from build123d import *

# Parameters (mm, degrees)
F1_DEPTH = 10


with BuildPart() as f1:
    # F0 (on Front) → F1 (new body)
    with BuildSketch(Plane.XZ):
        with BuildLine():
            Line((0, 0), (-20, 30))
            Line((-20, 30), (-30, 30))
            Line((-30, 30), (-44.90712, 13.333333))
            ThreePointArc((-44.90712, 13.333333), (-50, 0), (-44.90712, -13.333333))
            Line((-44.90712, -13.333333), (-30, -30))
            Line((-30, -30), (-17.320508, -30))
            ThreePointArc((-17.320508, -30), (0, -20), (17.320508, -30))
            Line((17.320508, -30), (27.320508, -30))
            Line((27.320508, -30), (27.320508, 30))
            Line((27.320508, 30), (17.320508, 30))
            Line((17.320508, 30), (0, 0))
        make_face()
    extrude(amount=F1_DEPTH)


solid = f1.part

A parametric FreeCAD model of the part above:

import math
import FreeCAD as App
import Part
import Sketcher

V = App.Vector
Q = App.Units.Quantity

doc = App.newDocument("Part")
body = doc.addObject("PartDesign::Body", "Body")

# Sketch on XZ plane
sketch1 = doc.addObject("Sketcher::SketchObject", "Sketch")
body.addObject(sketch1)
sketch1.AttachmentSupport = (doc.XZ_Plane, [""])
sketch1.MapMode = "FlatFace"
sketch1.addGeometry(Part.LineSegment(V(0, 0, 0), V(-20, 30, 0)), False)
sketch1.addGeometry(Part.LineSegment(V(-20, 30, 0), V(-30, 30, 0)), False)
sketch1.addGeometry(Part.LineSegment(V(-30, 30, 0), V(-45, 13, 0)), False)
sketch1.addGeometry(Part.ArcOfCircle(Part.Circle(V(-30, 0, 0), V(0, 0, 1), 20), math.radians(138), math.radians(222)), False)
sketch1.addGeometry(Part.LineSegment(V(-45, -13, 0), V(-30, -30, 0)), False)
sketch1.addGeometry(Part.LineSegment(V(-30, -30, 0), V(-17, -30, 0)), False)
sketch1.addGeometry(Part.ArcOfCircle(Part.Circle(V(0, -40, 0), V(0, 0, 1), 20), math.radians(30), math.radians(150)), False)
sketch1.addGeometry(Part.LineSegment(V(17, -30, 0), V(27, -30, 0)), False)
sketch1.addGeometry(Part.LineSegment(V(27, -30, 0), V(27, 30, 0)), False)
sketch1.addGeometry(Part.LineSegment(V(27, 30, 0), V(17, 30, 0)), False)
sketch1.addGeometry(Part.LineSegment(V(17, 30, 0), V(0, 0, 0)), False)
sketch1.addConstraint(Sketcher.Constraint("Coincident", 0, 2, 1, 1))
sketch1.addConstraint(Sketcher.Constraint("Coincident", 1, 2, 2, 1))
sketch1.addConstraint(Sketcher.Constraint("Tangent", 2, 2, 3, 1))
sketch1.addConstraint(Sketcher.Constraint("Tangent", 3, 2, 4, 1))
sketch1.addConstraint(Sketcher.Constraint("Coincident", 4, 2, 5, 1))
sketch1.addConstraint(Sketcher.Constraint("Coincident", 5, 2, 6, 2))
sketch1.addConstraint(Sketcher.Constraint("Coincident", 6, 1, 7, 1))
sketch1.addConstraint(Sketcher.Constraint("Coincident", 7, 2, 8, 1))
sketch1.addConstraint(Sketcher.Constraint("Coincident", 8, 2, 9, 1))
sketch1.addConstraint(Sketcher.Constraint("Coincident", 9, 2, 10, 1))
sketch1.addConstraint(Sketcher.Constraint("Coincident", 10, 2, 0, 1))
sketch1.addConstraint(Sketcher.Constraint("Horizontal", 1))
sketch1.addConstraint(Sketcher.Constraint("Horizontal", 5))
sketch1.addConstraint(Sketcher.Constraint("Horizontal", 7))
sketch1.addConstraint(Sketcher.Constraint("Vertical", 8))
sketch1.addConstraint(Sketcher.Constraint("Horizontal", 9))
sketch1.addConstraint(Sketcher.Constraint("Coincident", 10, 2, -1, 1))
sketch1.addConstraint(Sketcher.Constraint("Equal", 3, 6))
sketch1.addConstraint(Sketcher.Constraint("Symmetric", 5, 2, 9, 2, -1, 1))
sketch1.addConstraint(Sketcher.Constraint("Symmetric", 5, 2, 6, 1, -2))
sketch1.addConstraint(Sketcher.Constraint("Symmetric", 2, 2, 3, 2, -1))
sketch1.addConstraint(Sketcher.Constraint("Horizontal", 1, 2, 8, 2))
sketch1.addConstraint(Sketcher.Constraint("Vertical", 3, 3, 1, 2))
sketch1.addConstraint(Sketcher.Constraint("Equal", 1, 7))
sketch1.addConstraint(Sketcher.Constraint("Radius", 3, Q("20 mm")))
sketch1.addConstraint(Sketcher.Constraint("DistanceX", 1, 2, 1, 1, Q("10 mm")))
sketch1.addConstraint(Sketcher.Constraint("DistanceY", 8, 1, 8, 2, Q("60 mm")))
sketch1.addConstraint(Sketcher.Constraint("Angle", 10, Q("-120 deg")))
sketch1.addConstraint(Sketcher.Constraint("DistanceX", 3, 3, -1, 1, Q("30 mm")))
pad1 = doc.addObject("PartDesign::Pad", "Pad")
body.addObject(pad1)
pad1.Profile = sketch1
pad1.Length = 10

doc.recompute()
